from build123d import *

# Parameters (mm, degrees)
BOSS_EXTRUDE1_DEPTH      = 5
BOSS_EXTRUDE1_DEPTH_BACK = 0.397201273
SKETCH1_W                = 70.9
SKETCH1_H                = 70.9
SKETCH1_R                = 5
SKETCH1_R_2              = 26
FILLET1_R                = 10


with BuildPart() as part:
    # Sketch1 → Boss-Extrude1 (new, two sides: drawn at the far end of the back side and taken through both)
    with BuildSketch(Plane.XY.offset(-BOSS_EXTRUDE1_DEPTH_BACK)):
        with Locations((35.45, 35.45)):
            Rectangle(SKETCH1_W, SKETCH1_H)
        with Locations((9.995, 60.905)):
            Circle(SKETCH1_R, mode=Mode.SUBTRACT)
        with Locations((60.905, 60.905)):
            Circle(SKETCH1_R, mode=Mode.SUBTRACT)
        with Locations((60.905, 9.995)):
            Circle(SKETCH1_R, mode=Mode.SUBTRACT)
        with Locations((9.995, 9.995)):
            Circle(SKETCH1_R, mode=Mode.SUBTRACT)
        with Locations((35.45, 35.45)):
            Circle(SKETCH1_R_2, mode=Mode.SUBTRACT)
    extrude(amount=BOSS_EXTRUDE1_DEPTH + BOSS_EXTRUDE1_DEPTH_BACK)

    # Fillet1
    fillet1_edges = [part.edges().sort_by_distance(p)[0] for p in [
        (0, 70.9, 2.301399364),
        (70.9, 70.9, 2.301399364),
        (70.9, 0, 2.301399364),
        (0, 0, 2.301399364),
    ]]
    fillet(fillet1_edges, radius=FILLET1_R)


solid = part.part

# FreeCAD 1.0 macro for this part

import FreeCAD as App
import Part
import Sketcher
Q = App.Units.Quantity


def edges_at(feature, points):
    """Names of the edges that pass closest to the given points."""
    edges = feature.Shape.Edges
    near = lambda p: min(range(len(edges)), key=lambda i: edges[i].distToShape(Part.Vertex(*p))[0])
    return sorted({f"Edge{near(p) + 1}" for p in points})


def add_polygon(sketch, points):
    """Adds a closed chain of lines whose ends are joined by coincident constraints."""
    first, n = sketch.GeometryCount, len(points)
    for a, b in zip(points, points[1:] + points[:1]):
        sketch.addGeometry(Part.LineSegment(App.Vector(*a, 0), App.Vector(*b, 0)), False)
    for i in range(n):
        sketch.addConstraint(Sketcher.Constraint("Coincident", first + i, 2, first + (i + 1) % n, 1))

doc = App.newDocument("Part")
body = doc.addObject("PartDesign::Body", "Body")

# Sketch on XY plane
sketch1 = body.newObject("Sketcher::SketchObject", "Sketch")
sketch1.AttachmentSupport = (doc.getObject("XY_Plane"), [""])
sketch1.MapMode = "FlatFace"
add_polygon(sketch1, [(0, 70.9), (0, 0), (70.9, 0), (70.9, 70.9)])  # lines 0-3
sketch1.addGeometry(Part.Circle(App.Vector(9.995, 9.995, 0), App.Vector(0, 0, 1), 5), False)  # 4
sketch1.addGeometry(Part.Circle(App.Vector(60.905, 9.995, 0), App.Vector(0, 0, 1), 5), False)  # 5
sketch1.addGeometry(Part.Circle(App.Vector(9.995, 60.905, 0), App.Vector(0, 0, 1), 5), False)  # 6
sketch1.addGeometry(Part.Circle(App.Vector(35.45, 35.45, 0), App.Vector(0, 0, 1), 26), False)  # 7
sketch1.addGeometry(Part.Circle(App.Vector(60.905, 60.905, 0), App.Vector(0, 0, 1), 5), False)  # 8
sketch1.addConstraint(Sketcher.Constraint("Vertical", 0))
sketch1.addConstraint(Sketcher.Constraint("Horizontal", 1))
sketch1.addConstraint(Sketcher.Constraint("Vertical", 2))
sketch1.addConstraint(Sketcher.Constraint("Horizontal", 3))
sketch1.addConstraint(Sketcher.Constraint("Coincident", 0, 2, -1, 1))
sketch1.addConstraint(Sketcher.Constraint("Equal", 4, 5))
sketch1.addConstraint(Sketcher.Constraint("Equal", 5, 6))
sketch1.addConstraint(Sketcher.Constraint("Equal", 6, 8))
sketch1.addConstraint(Sketcher.Constraint("Horizontal", 4, 3, 5, 3))
sketch1.addConstraint(Sketcher.Constraint("Horizontal", 6, 3, 8, 3))
sketch1.addConstraint(Sketcher.Constraint("Vertical", 4, 3, 6, 3))
sketch1.addConstraint(Sketcher.Constraint("Vertical", 5, 3, 8, 3))
sketch1.addConstraint(Sketcher.Constraint("Equal", 3, 0))
sketch1.addConstraint(Sketcher.Constraint("Diameter", 4, Q("10 mm")))
sketch1.addConstraint(Sketcher.Constraint("Diameter", 7, Q("52 mm")))
sketch1.addConstraint(Sketcher.Constraint("DistanceX", 1, 1, 1, 2, Q("70.9 mm")))
sketch1.addConstraint(Sketcher.Constraint("DistanceX", -1, 1, 7, 3, Q("35.45 mm")))
sketch1.addConstraint(Sketcher.Constraint("DistanceY", -1, 1, 7, 3, Q("35.45 mm")))
sketch1.addConstraint(Sketcher.Constraint("DistanceX", 4, 3, 5, 3, Q("50.91 mm")))
sketch1.addConstraint(Sketcher.Constraint("DistanceY", 4, 3, 6, 3, Q("50.91 mm")))
sketch1.addConstraint(Sketcher.Constraint("DistanceX", -1, 1, 4, 3, Q("9.995 mm")))
sketch1.addConstraint(Sketcher.Constraint("DistanceY", -1, 1, 4, 3, Q("9.995 mm")))
pad1 = body.newObject("PartDesign::Pad", "Pad")
pad1.Profile = sketch1
pad1.Type = "TwoLengths"
pad1.Length = 5
pad1.Length2 = 0.397201
doc.recompute()

fillet = body.newObject("PartDesign::Fillet", "Fillet")
fillet.Base = (pad1, edges_at(pad1, [
    (0, 70.9, 2.301),
    (70.9, 70.9, 2.301),
    (70.9, 0, 2.301),
    (0, 0, 2.301),
]))
fillet.Radius = 10

doc.recompute()
